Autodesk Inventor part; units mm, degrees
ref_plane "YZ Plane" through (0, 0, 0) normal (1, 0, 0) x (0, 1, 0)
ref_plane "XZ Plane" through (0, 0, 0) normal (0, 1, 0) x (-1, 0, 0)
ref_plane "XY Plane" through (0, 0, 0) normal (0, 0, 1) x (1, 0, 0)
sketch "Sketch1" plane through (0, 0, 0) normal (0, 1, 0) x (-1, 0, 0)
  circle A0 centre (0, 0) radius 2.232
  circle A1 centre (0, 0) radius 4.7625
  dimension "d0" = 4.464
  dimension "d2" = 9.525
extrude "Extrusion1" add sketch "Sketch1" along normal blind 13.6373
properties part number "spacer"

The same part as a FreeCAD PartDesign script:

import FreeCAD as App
import Part
import Sketcher
from FreeCAD import Vector
Q = App.Units.Quantity

doc = App.newDocument("Part")
body = doc.addObject("PartDesign::Body", "Body")

sketch1 = body.newObject("Sketcher::SketchObject", "Sketch")
sketch1.AttachmentSupport = (doc.getObject("XZ_Plane"), [""])
sketch1.MapMode = "FlatFace"
sketch1.addGeometry(Part.Circle(Vector(0, 0, 0), Vector(0, 0, 1), 4.8), False)
sketch1.addGeometry(Part.Circle(Vector(0, 0, 0), Vector(0, 0, 1), 2.2), False)
sketch1.addConstraint(Sketcher.Constraint("Coincident", 0, 3, -1, 1))
sketch1.addConstraint(Sketcher.Constraint("Coincident", 1, 3, -1, 1))
sketch1.addConstraint(Sketcher.Constraint("Diameter", 0, Q("0.375 in")))
sketch1.addConstraint(Sketcher.Constraint("Diameter", 1, Q("4.464 mm")))
pad1 = body.newObject("PartDesign::Pad", "Pad")
pad1.Profile = sketch1
pad1.Length = Q("0.5369016 in")
pad1.Reversed = True

doc.recompute()
